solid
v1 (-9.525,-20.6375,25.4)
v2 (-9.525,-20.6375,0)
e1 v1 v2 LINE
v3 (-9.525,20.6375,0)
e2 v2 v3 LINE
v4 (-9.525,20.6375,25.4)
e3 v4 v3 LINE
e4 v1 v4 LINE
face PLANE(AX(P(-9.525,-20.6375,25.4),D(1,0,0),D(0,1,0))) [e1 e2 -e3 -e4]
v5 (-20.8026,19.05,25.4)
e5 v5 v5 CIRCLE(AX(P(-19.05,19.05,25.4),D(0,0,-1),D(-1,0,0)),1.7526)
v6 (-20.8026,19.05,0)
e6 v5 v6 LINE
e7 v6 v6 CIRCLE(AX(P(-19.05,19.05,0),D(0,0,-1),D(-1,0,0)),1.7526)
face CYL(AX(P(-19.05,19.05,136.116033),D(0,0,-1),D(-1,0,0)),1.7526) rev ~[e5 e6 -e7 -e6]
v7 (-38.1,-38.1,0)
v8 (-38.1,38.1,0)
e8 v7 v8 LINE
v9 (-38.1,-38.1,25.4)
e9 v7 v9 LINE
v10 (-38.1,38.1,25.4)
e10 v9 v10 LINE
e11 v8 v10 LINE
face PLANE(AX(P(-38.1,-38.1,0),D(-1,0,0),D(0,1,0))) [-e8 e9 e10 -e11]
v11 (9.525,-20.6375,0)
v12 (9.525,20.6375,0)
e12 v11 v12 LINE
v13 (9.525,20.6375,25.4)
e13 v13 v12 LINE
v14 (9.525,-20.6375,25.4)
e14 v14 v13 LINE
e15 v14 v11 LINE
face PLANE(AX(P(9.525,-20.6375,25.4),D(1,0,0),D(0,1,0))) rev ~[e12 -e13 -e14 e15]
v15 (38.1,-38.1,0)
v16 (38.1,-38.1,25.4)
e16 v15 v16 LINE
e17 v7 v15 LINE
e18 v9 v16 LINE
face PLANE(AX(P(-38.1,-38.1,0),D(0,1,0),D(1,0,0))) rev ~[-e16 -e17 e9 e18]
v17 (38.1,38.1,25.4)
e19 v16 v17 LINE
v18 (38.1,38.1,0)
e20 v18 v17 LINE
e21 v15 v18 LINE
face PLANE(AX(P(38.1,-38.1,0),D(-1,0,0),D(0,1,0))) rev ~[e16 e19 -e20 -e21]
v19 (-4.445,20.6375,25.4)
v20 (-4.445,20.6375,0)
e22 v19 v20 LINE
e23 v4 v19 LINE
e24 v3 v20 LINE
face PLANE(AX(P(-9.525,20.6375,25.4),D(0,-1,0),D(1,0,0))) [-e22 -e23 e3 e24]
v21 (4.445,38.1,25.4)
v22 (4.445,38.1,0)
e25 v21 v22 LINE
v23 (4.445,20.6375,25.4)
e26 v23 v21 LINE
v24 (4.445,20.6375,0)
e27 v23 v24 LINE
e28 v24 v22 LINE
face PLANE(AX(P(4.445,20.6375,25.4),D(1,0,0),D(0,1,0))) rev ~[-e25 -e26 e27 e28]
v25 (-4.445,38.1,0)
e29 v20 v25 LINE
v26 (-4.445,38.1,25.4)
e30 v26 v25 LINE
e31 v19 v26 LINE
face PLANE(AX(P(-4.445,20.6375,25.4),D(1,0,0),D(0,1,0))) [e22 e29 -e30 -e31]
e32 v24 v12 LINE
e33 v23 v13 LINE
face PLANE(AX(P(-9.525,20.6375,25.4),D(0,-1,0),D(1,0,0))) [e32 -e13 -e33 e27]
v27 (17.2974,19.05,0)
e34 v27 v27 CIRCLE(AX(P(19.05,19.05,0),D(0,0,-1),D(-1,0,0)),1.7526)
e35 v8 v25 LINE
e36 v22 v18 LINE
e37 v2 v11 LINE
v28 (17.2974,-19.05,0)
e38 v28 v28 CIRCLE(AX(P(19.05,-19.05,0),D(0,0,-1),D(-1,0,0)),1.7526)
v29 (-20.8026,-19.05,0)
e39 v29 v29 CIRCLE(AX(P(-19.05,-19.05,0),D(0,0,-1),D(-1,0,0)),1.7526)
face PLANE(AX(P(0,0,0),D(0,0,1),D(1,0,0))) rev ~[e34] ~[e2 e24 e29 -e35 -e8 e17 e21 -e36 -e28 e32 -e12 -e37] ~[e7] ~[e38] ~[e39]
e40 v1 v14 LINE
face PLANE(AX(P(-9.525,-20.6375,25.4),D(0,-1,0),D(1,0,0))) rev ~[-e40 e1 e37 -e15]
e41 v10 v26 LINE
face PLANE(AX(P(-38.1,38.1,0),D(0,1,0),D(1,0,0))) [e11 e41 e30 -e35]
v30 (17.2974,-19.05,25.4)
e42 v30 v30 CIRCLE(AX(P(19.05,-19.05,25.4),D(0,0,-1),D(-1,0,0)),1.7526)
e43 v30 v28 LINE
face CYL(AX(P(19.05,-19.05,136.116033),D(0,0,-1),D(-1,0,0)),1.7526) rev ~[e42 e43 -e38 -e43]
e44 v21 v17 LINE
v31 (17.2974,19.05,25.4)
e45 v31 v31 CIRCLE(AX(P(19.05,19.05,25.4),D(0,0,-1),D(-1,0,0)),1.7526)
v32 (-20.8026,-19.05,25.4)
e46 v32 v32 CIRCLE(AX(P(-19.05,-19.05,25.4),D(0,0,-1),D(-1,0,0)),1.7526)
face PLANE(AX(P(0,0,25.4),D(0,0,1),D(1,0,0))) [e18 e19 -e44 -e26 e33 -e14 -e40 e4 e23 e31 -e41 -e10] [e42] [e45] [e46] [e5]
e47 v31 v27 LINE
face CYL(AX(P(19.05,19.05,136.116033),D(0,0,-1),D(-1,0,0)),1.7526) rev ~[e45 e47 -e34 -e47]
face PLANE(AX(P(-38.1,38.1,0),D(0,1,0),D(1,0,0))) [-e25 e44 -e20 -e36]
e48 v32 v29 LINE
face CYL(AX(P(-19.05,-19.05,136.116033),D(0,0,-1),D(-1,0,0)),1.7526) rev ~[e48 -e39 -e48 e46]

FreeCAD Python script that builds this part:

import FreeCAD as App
import Part
import Sketcher
from FreeCAD import Vector
Q = App.Units.Quantity


def add_polygon(sketch, points):
    """Adds a closed chain of lines whose ends are joined by coincident constraints."""
    first, n = sketch.GeometryCount, len(points)
    for a, b in zip(points, points[1:] + points[:1]):
        sketch.addGeometry(Part.LineSegment(App.Vector(*a, 0), App.Vector(*b, 0)), False)
    for i in range(n):
        sketch.addConstraint(Sketcher.Constraint("Coincident", first + i, 2, first + (i + 1) % n, 1))

doc = App.newDocument("Part")
params = doc.addObject("Spreadsheet::Sheet", "Params")
for row, (alias, value) in enumerate([
    ("sketch1_width", "3 in"),
    ("pad1_length", "1 in"),
    ("sketch2_width", "0.75 in"),
    ("sketch2_height", "1.625 in"),
    ("pocket1_length", "1 in"),
    ("sketch3_width", "0.35 in"),
    ("sketch3_height", "0.6875 in"),
    ("pocket2_length", "1 in"),
    ("sketch4_diameter", "0.138 in"),
    ("hole_diameter", "0.138 in"),
], start=1):
    params.set(f"A{row}", alias)
    params.set(f"B{row}", "=" + value)
    params.setAlias(f"B{row}", alias)

body = doc.addObject("PartDesign::Body", "Body")

sketch1 = doc.addObject("Sketcher::SketchObject", "Sketch")
body.addObject(sketch1)
sketch1.AttachmentSupport = (doc.XY_Plane, [""])
sketch1.MapMode = "FlatFace"
add_polygon(sketch1, [(-38, 38), (-38, -38), (38, -38), (38, 38)])
sketch1.addConstraint(Sketcher.Constraint("Vertical", 0))
sketch1.addConstraint(Sketcher.Constraint("Horizontal", 1))
sketch1.addConstraint(Sketcher.Constraint("Vertical", 2))
sketch1.addConstraint(Sketcher.Constraint("Horizontal", 3))
sketch1.addConstraint(Sketcher.Constraint("Symmetric", 0, 2, 2, 2, -1, 1))
sketch1.addConstraint(Sketcher.Constraint("Equal", 3, 0))
sketch1.addConstraint(Sketcher.Constraint("DistanceX", 1, 1, 1, 2, Q("3 in")))
sketch1.setExpression("Constraints[10]", "Params.sketch1_width")
pad1 = doc.addObject("PartDesign::Pad", "Pad")
body.addObject(pad1)
pad1.Profile = sketch1
pad1.setExpression("Length", "Params.pad1_length")

sketch2 = doc.addObject("Sketcher::SketchObject", "Sketch001")
body.addObject(sketch2)
sketch2.AttachmentSupport = (doc.XY_Plane, [""])
sketch2.MapMode = "FlatFace"
sketch2.AttachmentOffset = App.Placement(Vector(0, 0, 1 * 25.4), App.Rotation())
add_polygon(sketch2, [(-10, 21), (-10, -21), (10, -21), (10, 21)])
sketch2.addConstraint(Sketcher.Constraint("Vertical", 0))
sketch2.addConstraint(Sketcher.Constraint("Horizontal", 1))
sketch2.addConstraint(Sketcher.Constraint("Vertical", 2))
sketch2.addConstraint(Sketcher.Constraint("Horizontal", 3))
sketch2.addConstraint(Sketcher.Constraint("Symmetric", 0, 2, 2, 2, -1, 1))
sketch2.addConstraint(Sketcher.Constraint("DistanceX", 1, 1, 1, 2, Q("0.75 in")))
sketch2.addConstraint(Sketcher.Constraint("DistanceY", 0, 2, 0, 1, Q("1.625 in")))
sketch2.setExpression("Constraints[9]", "Params.sketch2_width")
sketch2.setExpression("Constraints[10]", "Params.sketch2_height")
pocket1 = doc.addObject("PartDesign::Pocket", "Pocket")
body.addObject(pocket1)
pocket1.Profile = sketch2
pocket1.setExpression("Length", "Params.pocket1_length")

sketch3 = doc.addObject("Sketcher::SketchObject", "Sketch002")
body.addObject(sketch3)
sketch3.AttachmentSupport = (doc.XY_Plane, [""])
sketch3.MapMode = "FlatFace"
sketch3.AttachmentOffset = App.Placement(Vector(0, 0, 1 * 25.4), App.Rotation())
add_polygon(sketch3, [(-4, 38), (-4, 21), (4, 21), (4, 38)])
sketch3.addConstraint(Sketcher.Constraint("Vertical", 0))
sketch3.addConstraint(Sketcher.Constraint("Horizontal", 1))
sketch3.addConstraint(Sketcher.Constraint("Vertical", 2))
sketch3.addConstraint(Sketcher.Constraint("Horizontal", 3))
sketch3.addConstraint(Sketcher.Constraint("DistanceX", 1, 1, 1, 2, Q("0.35 in")))
sketch3.addConstraint(Sketcher.Constraint("DistanceY", -1, 1, 2, 2, Q("1.5 in")))
sketch3.addConstraint(Sketcher.Constraint("DistanceY", 0, 2, 0, 1, Q("0.6875 in")))
sketch3.addConstraint(Sketcher.Constraint("DistanceX", 0, 2, -1, 1, Q("0.175 in")))
sketch3.setExpression("Constraints[8]", "Params.sketch3_width")
sketch3.setExpression("Constraints[10]", "Params.sketch3_height")
pocket2 = doc.addObject("PartDesign::Pocket", "Pocket001")
body.addObject(pocket2)
pocket2.Profile = sketch3
pocket2.setExpression("Length", "Params.pocket2_length")

sketch4 = doc.addObject("Sketcher::SketchObject", "Sketch003")
body.addObject(sketch4)
sketch4.AttachmentSupport = (doc.XY_Plane, [""])
sketch4.MapMode = "FlatFace"
sketch4.AttachmentOffset = App.Placement(Vector(0, 0, 1 * 25.4), App.Rotation())
sketch4.addGeometry(Part.Circle(Vector(-19.1, 19.1, 0), Vector(0, 0, 1), 1.8), False)
sketch4.addGeometry(Part.Circle(Vector(-19.1, -19.1, 0), Vector(0, 0, 1), 1.8), False)
sketch4.addGeometry(Part.Circle(Vector(19.1, -19.1, 0), Vector(0, 0, 1), 1.8), False)
sketch4.addGeometry(Part.Circle(Vector(19.1, 19.1, 0), Vector(0, 0, 1), 1.8), False)
sketch4.addConstraint(Sketcher.Constraint("Equal", 0, 1))
sketch4.addConstraint(Sketcher.Constraint("Equal", 1, 2))
sketch4.addConstraint(Sketcher.Constraint("Equal", 2, 3))
sketch4.addConstraint(Sketcher.Constraint("Symmetric", 0, 3, 2, 3, -1, 1))
sketch4.addConstraint(Sketcher.Constraint("Symmetric", 1, 3, 3, 3, -1, 1))
sketch4.addConstraint(Sketcher.Constraint("Symmetric", 1, 3, 2, 3, -2))
sketch4.addConstraint(Sketcher.Constraint("Diameter", 0, Q("0.138 in")))
sketch4.addConstraint(Sketcher.Constraint("DistanceY", 1, 3, 0, 3, Q("1.5 in")))
sketch4.addConstraint(Sketcher.Constraint("DistanceX", 1, 3, 2, 3, Q("1.5 in")))
sketch4.setExpression("Constraints[6]", "Params.sketch4_diameter")
doc.recompute()
hole = doc.addObject("PartDesign::Hole", "Hole")
body.addObject(hole)
hole.Profile = sketch4
hole.ThreadType = "None"
hole.setExpression("Diameter", "Params.hole_diameter")
hole.DepthType = "ThroughAll"

doc.recompute()
